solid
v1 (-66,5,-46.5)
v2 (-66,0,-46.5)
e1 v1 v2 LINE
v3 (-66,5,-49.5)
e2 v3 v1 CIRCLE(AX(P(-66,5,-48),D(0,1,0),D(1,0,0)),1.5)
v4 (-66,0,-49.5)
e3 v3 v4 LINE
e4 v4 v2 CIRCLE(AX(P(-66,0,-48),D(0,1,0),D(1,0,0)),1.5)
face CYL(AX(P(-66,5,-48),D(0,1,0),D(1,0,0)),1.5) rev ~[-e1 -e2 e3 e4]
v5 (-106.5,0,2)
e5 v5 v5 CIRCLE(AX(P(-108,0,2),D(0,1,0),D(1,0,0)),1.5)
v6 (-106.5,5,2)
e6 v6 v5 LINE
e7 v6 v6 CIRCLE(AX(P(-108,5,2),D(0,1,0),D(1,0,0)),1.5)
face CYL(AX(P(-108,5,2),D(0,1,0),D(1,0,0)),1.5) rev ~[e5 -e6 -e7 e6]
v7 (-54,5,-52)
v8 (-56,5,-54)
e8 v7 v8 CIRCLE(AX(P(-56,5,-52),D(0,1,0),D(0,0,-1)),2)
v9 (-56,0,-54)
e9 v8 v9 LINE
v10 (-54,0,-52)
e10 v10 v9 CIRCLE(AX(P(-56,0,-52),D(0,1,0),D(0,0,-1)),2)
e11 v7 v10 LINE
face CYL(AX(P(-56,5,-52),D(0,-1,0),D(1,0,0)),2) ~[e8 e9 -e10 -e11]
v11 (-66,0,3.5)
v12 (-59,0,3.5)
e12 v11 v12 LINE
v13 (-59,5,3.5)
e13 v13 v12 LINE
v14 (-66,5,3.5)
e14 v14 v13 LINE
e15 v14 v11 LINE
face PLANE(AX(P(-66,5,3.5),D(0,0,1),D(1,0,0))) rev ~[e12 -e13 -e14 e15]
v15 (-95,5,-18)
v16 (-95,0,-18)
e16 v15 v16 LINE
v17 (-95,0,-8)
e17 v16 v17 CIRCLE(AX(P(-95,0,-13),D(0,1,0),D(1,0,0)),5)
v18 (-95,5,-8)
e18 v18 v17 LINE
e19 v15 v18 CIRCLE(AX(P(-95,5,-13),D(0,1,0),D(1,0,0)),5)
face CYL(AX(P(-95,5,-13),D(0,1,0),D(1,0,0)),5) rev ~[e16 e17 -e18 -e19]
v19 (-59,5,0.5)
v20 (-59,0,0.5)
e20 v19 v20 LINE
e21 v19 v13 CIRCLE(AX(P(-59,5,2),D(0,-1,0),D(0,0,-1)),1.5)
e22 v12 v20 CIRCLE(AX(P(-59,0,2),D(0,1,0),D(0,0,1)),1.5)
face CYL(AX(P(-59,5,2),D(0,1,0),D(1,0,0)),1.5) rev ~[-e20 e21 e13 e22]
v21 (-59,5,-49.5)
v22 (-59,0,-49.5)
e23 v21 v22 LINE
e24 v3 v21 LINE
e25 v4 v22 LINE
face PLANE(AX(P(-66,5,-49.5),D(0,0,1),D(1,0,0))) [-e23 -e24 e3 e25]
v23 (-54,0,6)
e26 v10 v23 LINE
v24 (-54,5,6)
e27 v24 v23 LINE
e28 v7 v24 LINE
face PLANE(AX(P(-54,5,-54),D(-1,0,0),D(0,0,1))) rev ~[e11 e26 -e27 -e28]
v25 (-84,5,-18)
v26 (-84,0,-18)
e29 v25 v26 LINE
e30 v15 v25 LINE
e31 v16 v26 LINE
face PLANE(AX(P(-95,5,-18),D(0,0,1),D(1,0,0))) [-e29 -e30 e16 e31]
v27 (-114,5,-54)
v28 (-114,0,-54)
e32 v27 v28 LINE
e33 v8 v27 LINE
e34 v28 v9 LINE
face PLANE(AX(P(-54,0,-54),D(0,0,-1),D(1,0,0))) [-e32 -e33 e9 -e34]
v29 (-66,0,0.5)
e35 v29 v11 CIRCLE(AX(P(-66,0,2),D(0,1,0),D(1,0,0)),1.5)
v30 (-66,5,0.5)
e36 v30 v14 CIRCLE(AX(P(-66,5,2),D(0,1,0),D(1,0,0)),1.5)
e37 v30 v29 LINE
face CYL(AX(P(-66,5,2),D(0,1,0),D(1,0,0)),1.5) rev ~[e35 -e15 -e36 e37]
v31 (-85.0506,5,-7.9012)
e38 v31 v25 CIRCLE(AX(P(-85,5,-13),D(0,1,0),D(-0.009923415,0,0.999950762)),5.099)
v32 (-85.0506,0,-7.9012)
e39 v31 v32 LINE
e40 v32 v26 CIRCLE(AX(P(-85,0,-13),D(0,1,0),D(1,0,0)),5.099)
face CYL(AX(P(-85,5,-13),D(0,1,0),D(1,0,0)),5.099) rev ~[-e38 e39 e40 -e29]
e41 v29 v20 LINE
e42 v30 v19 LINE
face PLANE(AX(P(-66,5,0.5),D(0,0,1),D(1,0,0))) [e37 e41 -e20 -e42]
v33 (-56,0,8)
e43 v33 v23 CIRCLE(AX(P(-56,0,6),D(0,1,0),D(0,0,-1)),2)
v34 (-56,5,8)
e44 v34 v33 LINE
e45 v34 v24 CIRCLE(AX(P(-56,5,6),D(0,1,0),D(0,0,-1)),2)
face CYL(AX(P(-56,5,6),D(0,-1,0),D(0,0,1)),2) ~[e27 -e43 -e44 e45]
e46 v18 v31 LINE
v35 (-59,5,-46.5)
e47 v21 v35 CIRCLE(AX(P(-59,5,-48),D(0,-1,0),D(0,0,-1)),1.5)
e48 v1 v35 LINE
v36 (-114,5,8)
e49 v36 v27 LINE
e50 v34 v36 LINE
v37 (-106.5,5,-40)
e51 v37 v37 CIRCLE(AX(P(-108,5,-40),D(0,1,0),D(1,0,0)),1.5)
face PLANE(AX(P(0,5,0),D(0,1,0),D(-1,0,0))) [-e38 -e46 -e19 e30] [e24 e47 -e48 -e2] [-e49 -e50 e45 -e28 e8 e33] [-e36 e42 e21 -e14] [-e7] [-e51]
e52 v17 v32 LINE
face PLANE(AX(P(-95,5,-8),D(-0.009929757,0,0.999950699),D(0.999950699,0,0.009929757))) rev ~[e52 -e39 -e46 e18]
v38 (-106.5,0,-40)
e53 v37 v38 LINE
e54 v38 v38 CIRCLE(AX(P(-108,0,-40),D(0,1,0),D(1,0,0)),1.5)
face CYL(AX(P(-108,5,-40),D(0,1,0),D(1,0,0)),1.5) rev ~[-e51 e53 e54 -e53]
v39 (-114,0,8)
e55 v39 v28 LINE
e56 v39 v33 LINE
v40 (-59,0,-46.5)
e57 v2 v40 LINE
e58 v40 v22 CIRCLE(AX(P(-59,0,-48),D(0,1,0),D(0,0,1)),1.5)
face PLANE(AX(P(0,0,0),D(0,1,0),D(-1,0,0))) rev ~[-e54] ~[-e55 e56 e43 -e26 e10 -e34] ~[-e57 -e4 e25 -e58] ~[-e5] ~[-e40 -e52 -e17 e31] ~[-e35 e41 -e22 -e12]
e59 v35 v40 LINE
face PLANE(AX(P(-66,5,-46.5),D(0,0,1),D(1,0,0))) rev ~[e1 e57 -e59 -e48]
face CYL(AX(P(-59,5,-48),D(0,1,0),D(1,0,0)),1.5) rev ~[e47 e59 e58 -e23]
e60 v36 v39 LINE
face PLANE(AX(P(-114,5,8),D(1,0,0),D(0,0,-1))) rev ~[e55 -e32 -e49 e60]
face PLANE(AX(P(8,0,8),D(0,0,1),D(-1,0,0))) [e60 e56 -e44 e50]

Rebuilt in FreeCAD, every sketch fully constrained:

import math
import FreeCAD as App
import Part
import Sketcher

V = App.Vector
Q = App.Units.Quantity


def edges_at(feature, points):
    """Names of the edges that pass closest to the given points."""
    edges = feature.Shape.Edges
    near = lambda p: min(range(len(edges)), key=lambda i: edges[i].distToShape(Part.Vertex(*p))[0])
    return sorted({f"Edge{near(p) + 1}" for p in points})


def add_polygon(sketch, points):
    """Adds a closed chain of lines whose ends are joined by coincident constraints."""
    first, n = sketch.GeometryCount, len(points)
    for a, b in zip(points, points[1:] + points[:1]):
        sketch.addGeometry(Part.LineSegment(App.Vector(*a, 0), App.Vector(*b, 0)), False)
    for i in range(n):
        sketch.addConstraint(Sketcher.Constraint("Coincident", first + i, 2, first + (i + 1) % n, 1))

doc = App.newDocument("Part")
body = doc.addObject("PartDesign::Body", "Body")

# Sketch on XZ plane
sketch1 = body.newObject("Sketcher::SketchObject", "Sketch")
sketch1.AttachmentSupport = (doc.getObject("XZ_Plane"), [""])
sketch1.MapMode = "FlatFace"
add_polygon(sketch1, [(-54, 8), (8, 8), (8, -54), (-54, -54)])  # lines 0-3
sketch1.addGeometry(Part.Circle(V(0, -46, 0), V(0, 0, 1), 1.5), False)  # 4
sketch1.addGeometry(Part.Circle(V(-46, -46, 0), V(0, 0, 1), 1.5), False)  # 5
sketch1.addGeometry(Part.Circle(V(0, 0, 0), V(0, 0, 1), 1.5), False)  # 6
sketch1.addGeometry(Part.Circle(V(-46, 0, 0), V(0, 0, 1), 1.5), False)  # 7
sketch1.addConstraint([
    Sketcher.Constraint("Horizontal", 0),
    Sketcher.Constraint("Vertical", 1),
    Sketcher.Constraint("Horizontal", 2),
    Sketcher.Constraint("Vertical", 3),
    Sketcher.Constraint("Coincident", 6, 3, -1, 1),
    Sketcher.Constraint("Equal", 4, 5),
    Sketcher.Constraint("Equal", 5, 6),
    Sketcher.Constraint("Equal", 6, 7),
    Sketcher.Constraint("PointOnObject", 4, 3, -2),
    Sketcher.Constraint("PointOnObject", 7, 3, -1),
    Sketcher.Constraint("Horizontal", 4, 3, 5, 3),
    Sketcher.Constraint("Vertical", 5, 3, 7, 3),
    Sketcher.Constraint("Equal", 2, 1),
    Sketcher.Constraint("Diameter", 4, Q("3 mm")),
    Sketcher.Constraint("DistanceY", 4, 3, -1, 1, Q("46 mm")),
    Sketcher.Constraint("DistanceX", 5, 3, -1, 1, Q("46 mm")),
    Sketcher.Constraint("DistanceX", -1, 1, 0, 2, Q("8 mm")),
    Sketcher.Constraint("DistanceY", -1, 1, 0, 2, Q("8 mm")),
    Sketcher.Constraint("DistanceY", 1, 2, 4, 3, Q("8 mm")),
])
pad1 = body.newObject("PartDesign::Pad", "Pad")
pad1.Profile = sketch1
pad1.Length = 5
pad1.Reversed = True

# Sketch on XZ plane
sketch2 = body.newObject("Sketcher::SketchObject", "Sketch001")
sketch2.AttachmentSupport = (doc.getObject("XZ_Plane"), [""])
sketch2.MapMode = "FlatFace"
sketch2.AttachmentOffset = App.Placement(V(0, 0, -5), App.Rotation())
add_polygon(sketch2, [(-114, 8), (-54, 8), (-54, -54), (-114, -54)])  # lines 0-3
sketch2.addConstraint([
    Sketcher.Constraint("Horizontal", 0),
    Sketcher.Constraint("Vertical", 1),
    Sketcher.Constraint("Horizontal", 2),
    Sketcher.Constraint("Vertical", 3),
    Sketcher.Constraint("DistanceX", 0, 1, 0, 2, Q("60 mm")),
    Sketcher.Constraint("DistanceY", 1, 2, 1, 1, Q("62 mm")),
    Sketcher.Constraint("DistanceX", 0, 2, -1, 1, Q("54 mm")),
    Sketcher.Constraint("DistanceY", -1, 1, 0, 2, Q("8 mm")),
])
pad2 = body.newObject("PartDesign::Pad", "Pad001")
pad2.Profile = sketch2
pad2.Length = 5

# Sketch on XZ plane
sketch3 = body.newObject("Sketcher::SketchObject", "Sketch002")
sketch3.AttachmentSupport = (doc.getObject("XZ_Plane"), [""])
sketch3.MapMode = "FlatFace"
sketch3.AttachmentOffset = App.Placement(V(0, 0, -5), App.Rotation())
add_polygon(sketch3, [(-2, -2), (-2, -44), (-44, -44), (-44, -2)])  # lines 0-3
sketch3.addConstraint([
    Sketcher.Constraint("Vertical", 0),
    Sketcher.Constraint("Horizontal", 1),
    Sketcher.Constraint("Vertical", 2),
    Sketcher.Constraint("Horizontal", 3),
    Sketcher.Constraint("Equal", 3, 0),
    Sketcher.Constraint("DistanceX", 1, 2, 1, 1, Q("43 mm")),
    Sketcher.Constraint("DistanceX", 0, 2, -1, 1, Q("1.5 mm")),
    Sketcher.Constraint("DistanceY", 0, 2, -1, 1, Q("44.5 mm")),
])
pocket1 = body.newObject("PartDesign::Pocket", "Pocket")
pocket1.Profile = sketch3
pocket1.Length = 5
pocket1.Reversed = True
doc.recompute()

fillet = body.newObject("PartDesign::Fillet", "Fillet")
fillet.Base = (pocket1, edges_at(pocket1, [
    (-44.5, 2.5, -44.5),
    (-44.5, 2.5, -1.5),
    (-1.5, 2.5, -1.5),
    (-1.5, 2.5, -44.5),
]))
fillet.Radius = 1

# Sketch on XZ plane
sketch4 = body.newObject("Sketcher::SketchObject", "Sketch003")
sketch4.AttachmentSupport = (doc.getObject("XZ_Plane"), [""])
sketch4.MapMode = "FlatFace"
sketch4.AttachmentOffset = App.Placement(V(0, 0, -5), App.Rotation())
sketch4.addGeometry([
    Part.Circle(V(-108, -40, 0), V(0, 0, 1), 1.5),  # 0
    Part.Circle(V(-108, 2, 0), V(0, 0, 1), 1.5),  # 1
    Part.ArcOfCircle(Part.Circle(V(-59, 2, 0), V(0, 0, 1), 1.5), math.radians(-90), math.radians(90)),  # 2
    Part.LineSegment(V(-59, 0.5, 0), V(-66, 0.5, 0)),  # 3
    Part.ArcOfCircle(Part.Circle(V(-66, 2, 0), V(0, 0, 1), 1.5), math.radians(90), math.radians(270)),  # 4
    Part.LineSegment(V(-66, 3.5, 0), V(-59, 3.5, 0)),  # 5
    Part.ArcOfCircle(Part.Circle(V(-59, -48, 0), V(0, 0, 1), 1.5), math.radians(-90), math.radians(90)),  # 6
    Part.LineSegment(V(-59, -49.5, 0), V(-66, -49.5, 0)),  # 7
    Part.ArcOfCircle(Part.Circle(V(-66, -48, 0), V(0, 0, 1), 1.5), math.radians(90), math.radians(270)),  # 8
    Part.LineSegment(V(-66, -46.5, 0), V(-59, -46.5, 0)),  # 9
], False)
sketch4.addConstraint([
    Sketcher.Constraint("Tangent", 2, 1, 3, 1),
    Sketcher.Constraint("Tangent", 3, 2, 4, 2),
    Sketcher.Constraint("Tangent", 4, 1, 5, 1),
    Sketcher.Constraint("Tangent", 5, 2, 2, 2),
    Sketcher.Constraint("Tangent", 6, 1, 7, 1),
    Sketcher.Constraint("Tangent", 7, 2, 8, 2),
    Sketcher.Constraint("Tangent", 8, 1, 9, 1),
    Sketcher.Constraint("Tangent", 9, 2, 6, 2),
    Sketcher.Constraint("Horizontal", 3),
    Sketcher.Constraint("Horizontal", 5),
    Sketcher.Constraint("Horizontal", 7),
    Sketcher.Constraint("Horizontal", 9),
    Sketcher.Constraint("Equal", 0, 1),
    Sketcher.Constraint("Equal", 1, 2),
    Sketcher.Constraint("Equal", 4, 6),
    Sketcher.Constraint("Horizontal", 1, 3, 2, 3),
    Sketcher.Constraint("Vertical", 0, 3, 1, 3),
    Sketcher.Constraint("Vertical", 2, 3, 6, 3),
    Sketcher.Constraint("Vertical", 4, 3, 8, 3),
    Sketcher.Constraint("Diameter", 0, Q("3 mm")),
    Sketcher.Constraint("DistanceX", 3, 2, 3, 1, Q("7 mm")),
    Sketcher.Constraint("DistanceY", 0, 3, 1, 3, Q("42 mm")),
    Sketcher.Constraint("DistanceX", 1, 3, 4, 3, Q("42 mm")),
    Sketcher.Constraint("DistanceY", 6, 3, 2, 3, Q("50 mm")),
    Sketcher.Constraint("DistanceX", 0, 3, -1, 1, Q("108 mm")),
    Sketcher.Constraint("DistanceY", 0, 3, -1, 1, Q("40 mm")),
])
pocket2 = body.newObject("PartDesign::Pocket", "Pocket001")
pocket2.Profile = sketch4
pocket2.Length = 5
pocket2.Reversed = True

# Sketch on XZ plane
sketch5 = body.newObject("Sketcher::SketchObject", "Sketch004")
sketch5.AttachmentSupport = (doc.getObject("XZ_Plane"), [""])
sketch5.MapMode = "FlatFace"
sketch5.AttachmentOffset = App.Placement(V(0, 0, -5), App.Rotation())
add_polygon(sketch5, [(-54, -54), (-54, 8), (8, 8), (8, -54)])  # lines 0-3
sketch5.addConstraint([
    Sketcher.Constraint("Vertical", 0),
    Sketcher.Constraint("Horizontal", 1),
    Sketcher.Constraint("Vertical", 2),
    Sketcher.Constraint("Horizontal", 3),
    Sketcher.Constraint("Equal", 3, 0),
    Sketcher.Constraint("DistanceX", 1, 1, 1, 2, Q("62 mm")),
    Sketcher.Constraint("DistanceX", 0, 2, -1, 1, Q("54 mm")),
    Sketcher.Constraint("DistanceY", -1, 1, 0, 2, Q("8 mm")),
])
pocket3 = body.newObject("PartDesign::Pocket", "Pocket002")
pocket3.Profile = sketch5
pocket3.Length = 10
pocket3.Reversed = True

# Sketch on XZ plane
sketch6 = body.newObject("Sketcher::SketchObject", "Sketch005")
sketch6.AttachmentSupport = (doc.getObject("XZ_Plane"), [""])
sketch6.MapMode = "FlatFace"
sketch6.AttachmentOffset = App.Placement(V(0, 0, -5), App.Rotation())
sketch6.addGeometry([
    Part.ArcOfCircle(Part.Circle(V(-95, -13, 0), V(0, 0, 1), 5), math.radians(90), math.radians(270)),
    Part.LineSegment(V(-95, -8, 0), V(-85, -8, 0)),
    Part.ArcOfCircle(Part.Circle(V(-85, -13, 0), V(0, 0, 1), 5), math.radians(-79), math.radians(91)),
    Part.LineSegment(V(-84, -18, 0), V(-95, -18, 0)),
], False)
sketch6.addConstraint([
    Sketcher.Constraint("Coincident", 0, 1, 1, 1),
    Sketcher.Constraint("Tangent", 1, 2, 2, 2),
    Sketcher.Constraint("Coincident", 2, 1, 3, 1),
    Sketcher.Constraint("Tangent", 3, 2, 0, 2),
    Sketcher.Constraint("Horizontal", 3),
    Sketcher.Constraint("Horizontal", 0, 3, 2, 3),
    Sketcher.Constraint("Vertical", 0, 1, 3, 2),
    Sketcher.Constraint("Radius", 0, Q("5 mm")),
    Sketcher.Constraint("DistanceY", 0, 3, -1, 1, Q("13 mm")),
    Sketcher.Constraint("DistanceX", 0, 3, 2, 3, Q("10 mm")),
    Sketcher.Constraint("DistanceX", 3, 2, 3, 1, Q("11 mm")),
    Sketcher.Constraint("DistanceX", 0, 3, -1, 1, Q("95 mm")),
])
pocket4 = body.newObject("PartDesign::Pocket", "Pocket003")
pocket4.Profile = sketch6
pocket4.Length = 10
pocket4.Reversed = True
doc.recompute()

fillet2 = body.newObject("PartDesign::Fillet", "Fillet001")
fillet2.Base = (pocket4, edges_at(pocket4, [(-54, 2.5, 8), (-54, 2.5, -54)]))
fillet2.Radius = 2

doc.recompute()
